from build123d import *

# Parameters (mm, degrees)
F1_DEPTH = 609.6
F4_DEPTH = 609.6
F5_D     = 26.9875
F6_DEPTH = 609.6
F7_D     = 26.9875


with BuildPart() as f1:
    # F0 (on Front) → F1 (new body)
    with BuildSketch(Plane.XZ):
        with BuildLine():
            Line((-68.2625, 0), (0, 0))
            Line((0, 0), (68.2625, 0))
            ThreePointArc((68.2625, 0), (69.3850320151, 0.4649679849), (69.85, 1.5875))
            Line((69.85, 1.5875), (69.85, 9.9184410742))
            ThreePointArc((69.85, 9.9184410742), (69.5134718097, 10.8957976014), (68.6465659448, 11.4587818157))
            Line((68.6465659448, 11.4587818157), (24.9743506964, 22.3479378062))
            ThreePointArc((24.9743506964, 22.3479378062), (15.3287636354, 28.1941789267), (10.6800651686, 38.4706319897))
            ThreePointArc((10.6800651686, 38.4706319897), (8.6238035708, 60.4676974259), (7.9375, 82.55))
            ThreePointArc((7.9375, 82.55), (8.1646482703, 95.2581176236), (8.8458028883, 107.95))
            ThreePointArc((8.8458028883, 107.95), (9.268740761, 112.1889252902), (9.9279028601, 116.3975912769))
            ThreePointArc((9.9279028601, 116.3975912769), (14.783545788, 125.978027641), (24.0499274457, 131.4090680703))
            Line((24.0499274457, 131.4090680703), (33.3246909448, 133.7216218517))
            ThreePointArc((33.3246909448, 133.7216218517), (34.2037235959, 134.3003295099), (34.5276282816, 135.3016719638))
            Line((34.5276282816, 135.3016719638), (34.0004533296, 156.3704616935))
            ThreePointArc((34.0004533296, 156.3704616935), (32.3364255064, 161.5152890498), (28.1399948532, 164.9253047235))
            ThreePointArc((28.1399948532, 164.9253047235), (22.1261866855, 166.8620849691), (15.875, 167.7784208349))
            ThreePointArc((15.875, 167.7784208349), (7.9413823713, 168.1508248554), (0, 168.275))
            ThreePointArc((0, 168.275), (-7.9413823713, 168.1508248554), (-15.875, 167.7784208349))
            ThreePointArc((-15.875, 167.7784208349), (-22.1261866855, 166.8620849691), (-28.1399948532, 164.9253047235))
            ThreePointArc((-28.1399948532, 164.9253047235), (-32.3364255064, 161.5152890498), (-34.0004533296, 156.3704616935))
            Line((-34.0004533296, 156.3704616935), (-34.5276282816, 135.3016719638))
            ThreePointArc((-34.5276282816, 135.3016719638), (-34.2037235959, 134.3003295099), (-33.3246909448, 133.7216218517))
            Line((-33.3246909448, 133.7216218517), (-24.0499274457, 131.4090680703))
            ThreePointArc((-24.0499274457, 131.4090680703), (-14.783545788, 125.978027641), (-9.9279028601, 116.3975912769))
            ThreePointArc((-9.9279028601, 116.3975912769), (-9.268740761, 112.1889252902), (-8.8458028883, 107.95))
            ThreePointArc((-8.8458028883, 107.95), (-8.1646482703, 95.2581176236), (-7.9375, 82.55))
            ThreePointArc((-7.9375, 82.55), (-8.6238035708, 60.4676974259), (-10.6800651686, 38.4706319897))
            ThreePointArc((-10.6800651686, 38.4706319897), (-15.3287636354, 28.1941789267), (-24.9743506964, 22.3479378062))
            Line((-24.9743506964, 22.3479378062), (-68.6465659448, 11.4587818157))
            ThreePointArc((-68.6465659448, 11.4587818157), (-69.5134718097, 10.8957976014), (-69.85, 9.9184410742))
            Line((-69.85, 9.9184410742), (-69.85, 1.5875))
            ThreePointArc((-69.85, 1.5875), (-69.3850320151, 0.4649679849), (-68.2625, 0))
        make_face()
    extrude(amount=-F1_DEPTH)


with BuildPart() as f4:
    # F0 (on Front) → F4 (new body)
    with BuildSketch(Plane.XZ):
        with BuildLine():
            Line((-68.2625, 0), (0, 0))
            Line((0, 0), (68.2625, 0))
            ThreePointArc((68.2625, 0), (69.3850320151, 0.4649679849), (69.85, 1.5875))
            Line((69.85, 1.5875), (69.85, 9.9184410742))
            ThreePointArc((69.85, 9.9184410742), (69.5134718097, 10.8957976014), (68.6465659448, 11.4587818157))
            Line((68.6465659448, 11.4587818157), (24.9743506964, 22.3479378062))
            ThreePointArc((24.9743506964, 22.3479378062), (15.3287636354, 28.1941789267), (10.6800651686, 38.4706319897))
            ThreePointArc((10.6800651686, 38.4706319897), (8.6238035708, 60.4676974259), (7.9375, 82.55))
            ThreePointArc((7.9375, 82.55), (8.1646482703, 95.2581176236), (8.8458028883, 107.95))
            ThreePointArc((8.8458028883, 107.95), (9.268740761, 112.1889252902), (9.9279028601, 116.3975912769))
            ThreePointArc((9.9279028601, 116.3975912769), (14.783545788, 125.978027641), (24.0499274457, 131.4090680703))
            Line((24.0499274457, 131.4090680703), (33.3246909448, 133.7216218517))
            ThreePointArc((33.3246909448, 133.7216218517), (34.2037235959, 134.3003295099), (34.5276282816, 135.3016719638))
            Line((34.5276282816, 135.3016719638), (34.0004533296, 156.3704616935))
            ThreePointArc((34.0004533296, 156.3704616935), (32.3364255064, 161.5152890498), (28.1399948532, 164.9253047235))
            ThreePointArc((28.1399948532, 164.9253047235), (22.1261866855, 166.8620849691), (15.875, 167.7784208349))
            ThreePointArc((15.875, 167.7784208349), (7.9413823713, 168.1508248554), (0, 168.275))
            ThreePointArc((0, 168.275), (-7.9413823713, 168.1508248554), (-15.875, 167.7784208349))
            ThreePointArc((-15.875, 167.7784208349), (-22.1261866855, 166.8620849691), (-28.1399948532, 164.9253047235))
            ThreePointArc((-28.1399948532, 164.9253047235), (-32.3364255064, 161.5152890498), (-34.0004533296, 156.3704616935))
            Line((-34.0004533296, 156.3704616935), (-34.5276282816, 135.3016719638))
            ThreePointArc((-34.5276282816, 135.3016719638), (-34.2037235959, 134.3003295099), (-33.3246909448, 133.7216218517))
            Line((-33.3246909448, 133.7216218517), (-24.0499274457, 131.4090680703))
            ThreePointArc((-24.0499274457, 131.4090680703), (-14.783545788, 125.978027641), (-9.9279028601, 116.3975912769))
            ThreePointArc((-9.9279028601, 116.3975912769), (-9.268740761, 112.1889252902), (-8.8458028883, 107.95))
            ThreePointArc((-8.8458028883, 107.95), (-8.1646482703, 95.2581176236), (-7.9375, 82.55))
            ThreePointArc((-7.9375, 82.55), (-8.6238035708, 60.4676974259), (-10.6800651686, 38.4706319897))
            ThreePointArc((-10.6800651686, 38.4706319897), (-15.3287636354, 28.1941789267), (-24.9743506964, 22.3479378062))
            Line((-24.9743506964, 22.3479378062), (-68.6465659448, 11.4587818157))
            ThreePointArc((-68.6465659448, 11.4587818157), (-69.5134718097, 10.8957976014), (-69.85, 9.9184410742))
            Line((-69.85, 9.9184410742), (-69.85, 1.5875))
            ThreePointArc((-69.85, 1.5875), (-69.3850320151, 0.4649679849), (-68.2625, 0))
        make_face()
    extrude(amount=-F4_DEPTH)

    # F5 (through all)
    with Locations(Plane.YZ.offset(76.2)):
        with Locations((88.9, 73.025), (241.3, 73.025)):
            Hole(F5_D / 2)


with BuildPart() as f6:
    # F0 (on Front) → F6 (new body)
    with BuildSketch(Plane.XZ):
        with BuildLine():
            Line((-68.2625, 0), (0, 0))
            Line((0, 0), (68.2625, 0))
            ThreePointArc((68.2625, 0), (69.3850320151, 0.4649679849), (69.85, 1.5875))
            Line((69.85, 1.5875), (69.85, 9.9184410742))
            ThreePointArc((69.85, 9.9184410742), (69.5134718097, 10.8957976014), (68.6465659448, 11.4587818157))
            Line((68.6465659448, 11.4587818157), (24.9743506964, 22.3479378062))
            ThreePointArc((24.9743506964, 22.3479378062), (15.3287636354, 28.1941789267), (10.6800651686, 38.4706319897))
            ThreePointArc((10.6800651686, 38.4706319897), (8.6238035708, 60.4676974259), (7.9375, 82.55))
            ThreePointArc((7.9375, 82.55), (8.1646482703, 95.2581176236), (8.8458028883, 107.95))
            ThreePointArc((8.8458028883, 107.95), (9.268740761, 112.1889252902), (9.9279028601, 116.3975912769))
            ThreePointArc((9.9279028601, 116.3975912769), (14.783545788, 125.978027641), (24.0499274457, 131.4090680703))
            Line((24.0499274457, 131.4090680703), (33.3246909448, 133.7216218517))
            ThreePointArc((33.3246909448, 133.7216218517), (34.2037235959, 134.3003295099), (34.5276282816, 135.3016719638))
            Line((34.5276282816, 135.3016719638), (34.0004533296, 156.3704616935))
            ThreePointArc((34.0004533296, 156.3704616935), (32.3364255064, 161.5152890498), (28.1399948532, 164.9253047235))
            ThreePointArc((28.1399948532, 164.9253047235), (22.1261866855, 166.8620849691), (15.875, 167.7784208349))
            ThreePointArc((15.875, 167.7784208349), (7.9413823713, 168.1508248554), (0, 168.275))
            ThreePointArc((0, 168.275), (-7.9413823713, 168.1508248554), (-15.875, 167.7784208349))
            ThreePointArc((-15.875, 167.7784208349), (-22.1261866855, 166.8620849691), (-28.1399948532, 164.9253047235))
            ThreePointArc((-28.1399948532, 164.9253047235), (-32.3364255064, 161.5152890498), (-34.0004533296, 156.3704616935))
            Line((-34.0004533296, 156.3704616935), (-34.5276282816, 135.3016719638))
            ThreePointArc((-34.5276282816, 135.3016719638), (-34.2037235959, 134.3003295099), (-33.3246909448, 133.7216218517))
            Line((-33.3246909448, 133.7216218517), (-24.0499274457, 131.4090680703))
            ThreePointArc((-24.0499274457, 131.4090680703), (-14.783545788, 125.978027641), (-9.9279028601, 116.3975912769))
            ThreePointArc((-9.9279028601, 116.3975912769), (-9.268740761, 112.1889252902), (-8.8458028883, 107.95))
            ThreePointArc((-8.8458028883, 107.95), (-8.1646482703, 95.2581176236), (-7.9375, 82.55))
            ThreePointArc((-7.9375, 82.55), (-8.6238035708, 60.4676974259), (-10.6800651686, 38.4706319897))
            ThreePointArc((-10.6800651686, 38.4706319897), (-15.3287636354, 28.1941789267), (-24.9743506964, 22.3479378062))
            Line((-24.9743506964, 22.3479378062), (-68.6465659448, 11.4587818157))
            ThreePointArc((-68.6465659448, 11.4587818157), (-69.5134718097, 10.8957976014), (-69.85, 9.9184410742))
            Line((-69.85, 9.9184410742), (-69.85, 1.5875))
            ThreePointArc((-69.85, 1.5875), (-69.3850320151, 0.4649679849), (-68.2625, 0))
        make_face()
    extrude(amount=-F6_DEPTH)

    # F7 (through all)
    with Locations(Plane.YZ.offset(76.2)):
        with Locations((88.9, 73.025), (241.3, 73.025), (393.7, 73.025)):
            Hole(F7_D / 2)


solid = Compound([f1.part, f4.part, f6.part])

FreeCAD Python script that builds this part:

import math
import FreeCAD as App
import Part
import Sketcher
Q = App.Units.Quantity

doc = App.newDocument("Part")
body = doc.addObject("PartDesign::Body", "Body")

# Sketch on XZ plane
sketch1 = body.newObject("Sketcher::SketchObject", "Sketch")
sketch1.AttachmentSupport = (doc.getObject("XZ_Plane"), [""])
sketch1.MapMode = "FlatFace"
sketch1.addGeometry([
    Part.LineSegment(App.Vector(-68.3, 0, 0), App.Vector(68.3, 0, 0)),  # 0
    Part.ArcOfCircle(Part.Circle(App.Vector(68.3, 1.6, 0), App.Vector(0, 0, 1), 1.6), math.radians(-90), math.radians(0)),  # 1
    Part.LineSegment(App.Vector(69.8, 1.6, 0), App.Vector(69.8, 9.9, 0)),  # 2
    Part.ArcOfCircle(Part.Circle(App.Vector(68.3, 9.9, 0), App.Vector(0, 0, 1), 1.6), math.radians(0), math.radians(76)),  # 3
    Part.LineSegment(App.Vector(68.6, 11.5, 0), App.Vector(25, 22.3, 0)),  # 4
    Part.ArcOfCircle(Part.Circle(App.Vector(29.6, 40.8, 0), App.Vector(0, 0, 1), 19.1), math.radians(-173), math.radians(-104)),  # 5
    Part.ArcOfCircle(Part.Circle(App.Vector(363.5, 82.5, 0), App.Vector(0, 0, 1), 355.6), math.radians(180), math.radians(187.12)),  # 6
    Part.ArcOfCircle(Part.Circle(App.Vector(363.5, 82.6, 0), App.Vector(0, 0, 1), 355.6), math.radians(175.9), math.radians(180)),  # 7
    Part.ArcOfCircle(Part.Circle(App.Vector(84.9, 102.5, 0), App.Vector(0, 0, 1), 76.2), math.radians(169.5), math.radians(175.9)),  # 8
    Part.ArcOfCircle(Part.Circle(App.Vector(28.7, 112.9, 0), App.Vector(0, 0, 1), 19.1), math.radians(104), math.radians(169)),  # 9
    Part.LineSegment(App.Vector(24, 131.4, 0), App.Vector(33.3, 133.7, 0)),  # 10
    Part.ArcOfCircle(Part.Circle(App.Vector(32.9, 135.3, 0), App.Vector(0, 0, 1), 1.6), math.radians(-76), math.radians(1)),  # 11
    Part.LineSegment(App.Vector(34.5, 135.3, 0), App.Vector(34, 156.4, 0)),  # 12
    Part.ArcOfCircle(Part.Circle(App.Vector(24.5, 156.1, 0), App.Vector(0, 0, 1), 9.5), math.radians(1), math.radians(67)),  # 13
    Part.ArcOfCircle(Part.Circle(App.Vector(13.5, 129.8, 0), App.Vector(0, 0, 1), 38.1), math.radians(67.39), math.radians(86.42)),  # 14
    Part.ArcOfCircle(Part.Circle(App.Vector(0, -85.7, 0), App.Vector(0, 0, 1), 254), math.radians(86.42), math.radians(90)),  # 15
    Part.ArcOfCircle(Part.Circle(App.Vector(0, -85.7, 0), App.Vector(0, 0, 1), 254), math.radians(90), math.radians(93.58)),  # 16
    Part.ArcOfCircle(Part.Circle(App.Vector(-13.5, 129.8, 0), App.Vector(0, 0, 1), 38.1), math.radians(93.58), math.radians(112.61)),  # 17
    Part.ArcOfCircle(Part.Circle(App.Vector(-24.5, 156.1, 0), App.Vector(0, 0, 1), 9.5), math.radians(113), math.radians(179)),  # 18
    Part.LineSegment(App.Vector(-34, 156.4, 0), App.Vector(-34.5, 135.3, 0)),  # 19
    Part.ArcOfCircle(Part.Circle(App.Vector(-32.9, 135.3, 0), App.Vector(0, 0, 1), 1.6), math.radians(179), math.radians(256)),  # 20
    Part.LineSegment(App.Vector(-33.3, 133.7, 0), App.Vector(-24, 131.4, 0)),  # 21
    Part.ArcOfCircle(Part.Circle(App.Vector(-28.7, 112.9, 0), App.Vector(0, 0, 1), 19.1), math.radians(11), math.radians(76)),  # 22
    Part.ArcOfCircle(Part.Circle(App.Vector(-84.9, 102.5, 0), App.Vector(0, 0, 1), 76.2), math.radians(4.1), math.radians(10.5)),  # 23
    Part.ArcOfCircle(Part.Circle(App.Vector(-363.5, 82.6, 0), App.Vector(0, 0, 1), 355.6), math.radians(0), math.radians(4.1)),  # 24
    Part.ArcOfCircle(Part.Circle(App.Vector(-363.5, 82.5, 0), App.Vector(0, 0, 1), 355.6), math.radians(-7.12), math.radians(0)),  # 25
    Part.ArcOfCircle(Part.Circle(App.Vector(-29.6, 40.8, 0), App.Vector(0, 0, 1), 19.1), math.radians(-76), math.radians(-7)),  # 26
    Part.LineSegment(App.Vector(-25, 22.3, 0), App.Vector(-68.6, 11.5, 0)),  # 27
    Part.ArcOfCircle(Part.Circle(App.Vector(-68.3, 9.9, 0), App.Vector(0, 0, 1), 1.6), math.radians(104), math.radians(180)),  # 28
    Part.LineSegment(App.Vector(-69.8, 9.9, 0), App.Vector(-69.8, 1.6, 0)),  # 29
    Part.ArcOfCircle(Part.Circle(App.Vector(-68.3, 1.6, 0), App.Vector(0, 0, 1), 1.6), math.radians(180), math.radians(270)),  # 30
], False)
sketch1.addConstraint([
    Sketcher.Constraint("Tangent", 0, 2, 1, 1),
    Sketcher.Constraint("Tangent", 1, 2, 2, 1),
    Sketcher.Constraint("Tangent", 2, 2, 3, 1),
    Sketcher.Constraint("Tangent", 3, 2, 4, 1),
    Sketcher.Constraint("Tangent", 4, 2, 5, 2),
    Sketcher.Constraint("Tangent", 5, 1, 6, 2),
    Sketcher.Constraint("Tangent", 6, 1, 7, 2),
    Sketcher.Constraint("Tangent", 7, 1, 8, 2),
    Sketcher.Constraint("Tangent", 8, 1, 9, 2),
    Sketcher.Constraint("Tangent", 9, 1, 10, 1),
    Sketcher.Constraint("Tangent", 10, 2, 11, 1),
    Sketcher.Constraint("Tangent", 11, 2, 12, 1),
    Sketcher.Constraint("Tangent", 12, 2, 13, 1),
    Sketcher.Constraint("Tangent", 13, 2, 14, 1),
    Sketcher.Constraint("Tangent", 14, 2, 15, 1),
    Sketcher.Constraint("Tangent", 15, 2, 16, 1),
    Sketcher.Constraint("Tangent", 16, 2, 17, 1),
    Sketcher.Constraint("Tangent", 17, 2, 18, 1),
    Sketcher.Constraint("Tangent", 18, 2, 19, 1),
    Sketcher.Constraint("Tangent", 19, 2, 20, 1),
    Sketcher.Constraint("Tangent", 20, 2, 21, 1),
    Sketcher.Constraint("Tangent", 21, 2, 22, 2),
    Sketcher.Constraint("Tangent", 22, 1, 23, 2),
    Sketcher.Constraint("Tangent", 23, 1, 24, 2),
    Sketcher.Constraint("Tangent", 24, 1, 25, 2),
    Sketcher.Constraint("Tangent", 25, 1, 26, 2),
    Sketcher.Constraint("Tangent", 26, 1, 27, 1),
    Sketcher.Constraint("Tangent", 27, 2, 28, 1),
    Sketcher.Constraint("Tangent", 28, 2, 29, 1),
    Sketcher.Constraint("Tangent", 29, 2, 30, 1),
    Sketcher.Constraint("Tangent", 30, 2, 0, 1),
    Sketcher.Constraint("Horizontal", 0),
    Sketcher.Constraint("Vertical", 2),
    Sketcher.Constraint("Vertical", 29),
    Sketcher.Constraint("Equal", 1, 3),
    Sketcher.Constraint("Equal", 6, 7),
    Sketcher.Constraint("Equal", 5, 9),
    Sketcher.Constraint("Equal", 3, 11),
    Sketcher.Constraint("Equal", 15, 16),
    Sketcher.Constraint("Equal", 14, 17),
    Sketcher.Constraint("Equal", 13, 18),
    Sketcher.Constraint("Equal", 11, 20),
    Sketcher.Constraint("Equal", 9, 22),
    Sketcher.Constraint("Equal", 8, 23),
    Sketcher.Constraint("Equal", 7, 24),
    Sketcher.Constraint("Equal", 24, 25),
    Sketcher.Constraint("Equal", 22, 26),
    Sketcher.Constraint("Equal", 20, 28),
    Sketcher.Constraint("Equal", 28, 30),
    Sketcher.Constraint("Symmetric", 0, 2, 30, 2, -1, 1),
    Sketcher.Constraint("Symmetric", 14, 3, 17, 3, -2),
    Sketcher.Constraint("Symmetric", 11, 3, 20, 3, -2),
    Sketcher.Constraint("Symmetric", 9, 3, 22, 3, -2),
    Sketcher.Constraint("Symmetric", 6, 3, 24, 3, -2),
    Sketcher.Constraint("Symmetric", 4, 2, 26, 1, -2),
    Sketcher.Constraint("PointOnObject", 15, 2, -2),
    Sketcher.Constraint("Parallel", 4, 21),
    Sketcher.Constraint("Horizontal", 13, 3, 18, 3),
    Sketcher.Constraint("Horizontal", 25, 3, 6, 1),
    Sketcher.Constraint("Horizontal", 6, 1, 24, 1),
    Sketcher.Constraint("Radius", 6, Q("14 in")),
    Sketcher.Constraint("Radius", 8, Q("3 in")),
    Sketcher.Constraint("Radius", 15, Q("10 in")),
    Sketcher.Constraint("Radius", 14, Q("1.5 in")),
    Sketcher.Constraint("Radius", 5, Q("0.75 in")),
    Sketcher.Constraint("Radius", 1, Q("0.0625 in")),
    Sketcher.Constraint("Radius", 13, Q("0.375 in")),
    Sketcher.Constraint("DistanceY", 6, 1, 7, 1, Q("1 in")),
    Sketcher.Constraint("DistanceX", 0, 1, 0, 2, Q("5.375 in")),
    Sketcher.Constraint("DistanceY", -1, 1, 6, 3, Q("3.25 in")),
    Sketcher.Constraint("DistanceX", 16, 2, 14, 2, Q("1.25 in")),
    Sketcher.Constraint("DistanceX", -1, 1, 6, 3, Q("14.3125 in")),
    Sketcher.Constraint("DistanceX", -1, 1, 11, 3, Q("1.296875 in")),
    Sketcher.Constraint("DistanceY", 15, 3, -1, 1, Q("3.375 in")),
    Sketcher.Constraint("DistanceY", 8, 1, 14, 3, Q("0.5257999 in")),
    Sketcher.Constraint("DistanceY", 2, 1, 2, 2, 8.330941),
    Sketcher.Constraint("DistanceX", 5, 1, 3, 2, 57.966501),
    Sketcher.Constraint("DistanceY", 11, 3, 12, 2, 21.108499),
])
pad1 = body.newObject("PartDesign::Pad", "Pad")
pad1.Profile = sketch1
pad1.Length = Q("24 in")
pad1.Reversed = True
body2 = doc.addObject("PartDesign::Body", "Body001")

# Sketch on XZ plane
sketch2 = body2.newObject("Sketcher::SketchObject", "Sketch001")
sketch2.AttachmentSupport = (doc.getObject("XZ_Plane001"), [""])
sketch2.MapMode = "FlatFace"
sketch2.addGeometry([
    Part.LineSegment(App.Vector(-68.3, 0, 0), App.Vector(68.3, 0, 0)),  # 0
    Part.ArcOfCircle(Part.Circle(App.Vector(68.3, 1.6, 0), App.Vector(0, 0, 1), 1.6), math.radians(-90), math.radians(0)),  # 1
    Part.LineSegment(App.Vector(69.8, 1.6, 0), App.Vector(69.8, 9.9, 0)),  # 2
    Part.ArcOfCircle(Part.Circle(App.Vector(68.3, 9.9, 0), App.Vector(0, 0, 1), 1.6), math.radians(0), math.radians(76)),  # 3
    Part.LineSegment(App.Vector(68.6, 11.5, 0), App.Vector(25, 22.3, 0)),  # 4
    Part.ArcOfCircle(Part.Circle(App.Vector(29.6, 40.8, 0), App.Vector(0, 0, 1), 19.1), math.radians(-173), math.radians(-104)),  # 5
    Part.ArcOfCircle(Part.Circle(App.Vector(363.5, 82.5, 0), App.Vector(0, 0, 1), 355.6), math.radians(180), math.radians(187.12)),  # 6
    Part.ArcOfCircle(Part.Circle(App.Vector(363.5, 82.6, 0), App.Vector(0, 0, 1), 355.6), math.radians(175.9), math.radians(180)),  # 7
    Part.ArcOfCircle(Part.Circle(App.Vector(84.9, 102.5, 0), App.Vector(0, 0, 1), 76.2), math.radians(169.5), math.radians(175.9)),  # 8
    Part.ArcOfCircle(Part.Circle(App.Vector(28.7, 112.9, 0), App.Vector(0, 0, 1), 19.1), math.radians(104), math.radians(169)),  # 9
    Part.LineSegment(App.Vector(24, 131.4, 0), App.Vector(33.3, 133.7, 0)),  # 10
    Part.ArcOfCircle(Part.Circle(App.Vector(32.9, 135.3, 0), App.Vector(0, 0, 1), 1.6), math.radians(-76), math.radians(1)),  # 11
    Part.LineSegment(App.Vector(34.5, 135.3, 0), App.Vector(34, 156.4, 0)),  # 12
    Part.ArcOfCircle(Part.Circle(App.Vector(24.5, 156.1, 0), App.Vector(0, 0, 1), 9.5), math.radians(1), math.radians(67)),  # 13
    Part.ArcOfCircle(Part.Circle(App.Vector(13.5, 129.8, 0), App.Vector(0, 0, 1), 38.1), math.radians(67.39), math.radians(86.42)),  # 14
    Part.ArcOfCircle(Part.Circle(App.Vector(0, -85.7, 0), App.Vector(0, 0, 1), 254), math.radians(86.42), math.radians(90)),  # 15
    Part.ArcOfCircle(Part.Circle(App.Vector(0, -85.7, 0), App.Vector(0, 0, 1), 254), math.radians(90), math.radians(93.58)),  # 16
    Part.ArcOfCircle(Part.Circle(App.Vector(-13.5, 129.8, 0), App.Vector(0, 0, 1), 38.1), math.radians(93.58), math.radians(112.61)),  # 17
    Part.ArcOfCircle(Part.Circle(App.Vector(-24.5, 156.1, 0), App.Vector(0, 0, 1), 9.5), math.radians(113), math.radians(179)),  # 18
    Part.LineSegment(App.Vector(-34, 156.4, 0), App.Vector(-34.5, 135.3, 0)),  # 19
    Part.ArcOfCircle(Part.Circle(App.Vector(-32.9, 135.3, 0), App.Vector(0, 0, 1), 1.6), math.radians(179), math.radians(256)),  # 20
    Part.LineSegment(App.Vector(-33.3, 133.7, 0), App.Vector(-24, 131.4, 0)),  # 21
    Part.ArcOfCircle(Part.Circle(App.Vector(-28.7, 112.9, 0), App.Vector(0, 0, 1), 19.1), math.radians(11), math.radians(76)),  # 22
    Part.ArcOfCircle(Part.Circle(App.Vector(-84.9, 102.5, 0), App.Vector(0, 0, 1), 76.2), math.radians(4.1), math.radians(10.5)),  # 23
    Part.ArcOfCircle(Part.Circle(App.Vector(-363.5, 82.6, 0), App.Vector(0, 0, 1), 355.6), math.radians(0), math.radians(4.1)),  # 24
    Part.ArcOfCircle(Part.Circle(App.Vector(-363.5, 82.5, 0), App.Vector(0, 0, 1), 355.6), math.radians(-7.12), math.radians(0)),  # 25
    Part.ArcOfCircle(Part.Circle(App.Vector(-29.6, 40.8, 0), App.Vector(0, 0, 1), 19.1), math.radians(-76), math.radians(-7)),  # 26
    Part.LineSegment(App.Vector(-25, 22.3, 0), App.Vector(-68.6, 11.5, 0)),  # 27
    Part.ArcOfCircle(Part.Circle(App.Vector(-68.3, 9.9, 0), App.Vector(0, 0, 1), 1.6), math.radians(104), math.radians(180)),  # 28
    Part.LineSegment(App.Vector(-69.8, 9.9, 0), App.Vector(-69.8, 1.6, 0)),  # 29
    Part.ArcOfCircle(Part.Circle(App.Vector(-68.3, 1.6, 0), App.Vector(0, 0, 1), 1.6), math.radians(180), math.radians(270)),  # 30
], False)
sketch2.addConstraint([
    Sketcher.Constraint("Tangent", 0, 2, 1, 1),
    Sketcher.Constraint("Tangent", 1, 2, 2, 1),
    Sketcher.Constraint("Tangent", 2, 2, 3, 1),
    Sketcher.Constraint("Tangent", 3, 2, 4, 1),
    Sketcher.Constraint("Tangent", 4, 2, 5, 2),
    Sketcher.Constraint("Tangent", 5, 1, 6, 2),
    Sketcher.Constraint("Tangent", 6, 1, 7, 2),
    Sketcher.Constraint("Tangent", 7, 1, 8, 2),
    Sketcher.Constraint("Tangent", 8, 1, 9, 2),
    Sketcher.Constraint("Tangent", 9, 1, 10, 1),
    Sketcher.Constraint("Tangent", 10, 2, 11, 1),
    Sketcher.Constraint("Tangent", 11, 2, 12, 1),
    Sketcher.Constraint("Tangent", 12, 2, 13, 1),
    Sketcher.Constraint("Tangent", 13, 2, 14, 1),
    Sketcher.Constraint("Tangent", 14, 2, 15, 1),
    Sketcher.Constraint("Tangent", 15, 2, 16, 1),
    Sketcher.Constraint("Tangent", 16, 2, 17, 1),
    Sketcher.Constraint("Tangent", 17, 2, 18, 1),
    Sketcher.Constraint("Tangent", 18, 2, 19, 1),
    Sketcher.Constraint("Tangent", 19, 2, 20, 1),
    Sketcher.Constraint("Tangent", 20, 2, 21, 1),
    Sketcher.Constraint("Tangent", 21, 2, 22, 2),
    Sketcher.Constraint("Tangent", 22, 1, 23, 2),
    Sketcher.Constraint("Tangent", 23, 1, 24, 2),
    Sketcher.Constraint("Tangent", 24, 1, 25, 2),
    Sketcher.Constraint("Tangent", 25, 1, 26, 2),
    Sketcher.Constraint("Tangent", 26, 1, 27, 1),
    Sketcher.Constraint("Tangent", 27, 2, 28, 1),
    Sketcher.Constraint("Tangent", 28, 2, 29, 1),
    Sketcher.Constraint("Tangent", 29, 2, 30, 1),
    Sketcher.Constraint("Tangent", 30, 2, 0, 1),
    Sketcher.Constraint("Horizontal", 0),
    Sketcher.Constraint("Vertical", 2),
    Sketcher.Constraint("Vertical", 29),
    Sketcher.Constraint("Equal", 1, 3),
    Sketcher.Constraint("Equal", 6, 7),
    Sketcher.Constraint("Equal", 5, 9),
    Sketcher.Constraint("Equal", 3, 11),
    Sketcher.Constraint("Equal", 15, 16),
    Sketcher.Constraint("Equal", 14, 17),
    Sketcher.Constraint("Equal", 13, 18),
    Sketcher.Constraint("Equal", 11, 20),
    Sketcher.Constraint("Equal", 9, 22),
    Sketcher.Constraint("Equal", 8, 23),
    Sketcher.Constraint("Equal", 7, 24),
    Sketcher.Constraint("Equal", 24, 25),
    Sketcher.Constraint("Equal", 22, 26),
    Sketcher.Constraint("Equal", 20, 28),
    Sketcher.Constraint("Equal", 28, 30),
    Sketcher.Constraint("Symmetric", 0, 2, 30, 2, -1, 1),
    Sketcher.Constraint("Symmetric", 14, 3, 17, 3, -2),
    Sketcher.Constraint("Symmetric", 11, 3, 20, 3, -2),
    Sketcher.Constraint("Symmetric", 9, 3, 22, 3, -2),
    Sketcher.Constraint("Symmetric", 6, 3, 24, 3, -2),
    Sketcher.Constraint("Symmetric", 4, 2, 26, 1, -2),
    Sketcher.Constraint("PointOnObject", 15, 2, -2),
    Sketcher.Constraint("Parallel", 4, 21),
    Sketcher.Constraint("Horizontal", 13, 3, 18, 3),
    Sketcher.Constraint("Horizontal", 25, 3, 6, 1),
    Sketcher.Constraint("Horizontal", 6, 1, 24, 1),
    Sketcher.Constraint("Radius", 6, Q("14 in")),
    Sketcher.Constraint("Radius", 8, Q("3 in")),
    Sketcher.Constraint("Radius", 15, Q("10 in")),
    Sketcher.Constraint("Radius", 14, Q("1.5 in")),
    Sketcher.Constraint("Radius", 5, Q("0.75 in")),
    Sketcher.Constraint("Radius", 1, Q("0.0625 in")),
    Sketcher.Constraint("Radius", 13, Q("0.375 in")),
    Sketcher.Constraint("DistanceY", 6, 1, 7, 1, Q("1 in")),
    Sketcher.Constraint("DistanceX", 0, 1, 0, 2, Q("5.375 in")),
    Sketcher.Constraint("DistanceY", -1, 1, 6, 3, Q("3.25 in")),
    Sketcher.Constraint("DistanceX", 16, 2, 14, 2, Q("1.25 in")),
    Sketcher.Constraint("DistanceX", -1, 1, 6, 3, Q("14.3125 in")),
    Sketcher.Constraint("DistanceX", -1, 1, 11, 3, Q("1.296875 in")),
    Sketcher.Constraint("DistanceY", 15, 3, -1, 1, Q("3.375 in")),
    Sketcher.Constraint("DistanceY", 8, 1, 14, 3, Q("0.5257999 in")),
    Sketcher.Constraint("DistanceY", 2, 1, 2, 2, 8.330941),
    Sketcher.Constraint("DistanceX", 5, 1, 3, 2, 57.966501),
    Sketcher.Constraint("DistanceY", 11, 3, 12, 2, 21.108499),
])
pad2 = body2.newObject("PartDesign::Pad", "Pad001")
pad2.Profile = sketch2
pad2.Length = Q("24 in")
pad2.Reversed = True

# Sketch on YZ plane
sketch3 = body2.newObject("Sketcher::SketchObject", "Sketch002")
sketch3.AttachmentSupport = (doc.getObject("YZ_Plane001"), [""])
sketch3.MapMode = "FlatFace"
sketch3.AttachmentOffset = App.Placement(App.Vector(0, 0, 3 * 25.4), App.Rotation())
sketch3.addGeometry([
    Part.Circle(App.Vector(89, 73, 0), App.Vector(0, 0, 1), 13),
    Part.Circle(App.Vector(241, 73, 0), App.Vector(0, 0, 1), 13),
], False)
sketch3.addConstraint([
    Sketcher.Constraint("Equal", 0, 1),
    Sketcher.Constraint("Horizontal", 0, 3, 1, 3),
    Sketcher.Constraint("Diameter", 0, Q("1.0625 in")),
    Sketcher.Constraint("DistanceX", 0, 3, 1, 3, Q("6 in")),
    Sketcher.Constraint("DistanceX", -1, 1, 0, 3, Q("3.5 in")),
    Sketcher.Constraint("DistanceY", -1, 1, 0, 3, Q("2.875 in")),
])
doc.recompute()
hole = body2.newObject("PartDesign::Hole", "Hole")
hole.Profile = sketch3
hole.ThreadType = "None"
hole.Diameter = Q("1.0625 in")
hole.DepthType = "ThroughAll"
body3 = doc.addObject("PartDesign::Body", "Body002")

# Sketch on XZ plane
sketch4 = body3.newObject("Sketcher::SketchObject", "Sketch003")
sketch4.AttachmentSupport = (doc.getObject("XZ_Plane002"), [""])
sketch4.MapMode = "FlatFace"
sketch4.addGeometry([
    Part.LineSegment(App.Vector(-68.3, 0, 0), App.Vector(68.3, 0, 0)),  # 0
    Part.ArcOfCircle(Part.Circle(App.Vector(68.3, 1.6, 0), App.Vector(0, 0, 1), 1.6), math.radians(-90), math.radians(0)),  # 1
    Part.LineSegment(App.Vector(69.8, 1.6, 0), App.Vector(69.8, 9.9, 0)),  # 2
    Part.ArcOfCircle(Part.Circle(App.Vector(68.3, 9.9, 0), App.Vector(0, 0, 1), 1.6), math.radians(0), math.radians(76)),  # 3
    Part.LineSegment(App.Vector(68.6, 11.5, 0), App.Vector(25, 22.3, 0)),  # 4
    Part.ArcOfCircle(Part.Circle(App.Vector(29.6, 40.8, 0), App.Vector(0, 0, 1), 19.1), math.radians(-173), math.radians(-104)),  # 5
    Part.ArcOfCircle(Part.Circle(App.Vector(363.5, 82.5, 0), App.Vector(0, 0, 1), 355.6), math.radians(180), math.radians(187.12)),  # 6
    Part.ArcOfCircle(Part.Circle(App.Vector(363.5, 82.6, 0), App.Vector(0, 0, 1), 355.6), math.radians(175.9), math.radians(180)),  # 7
    Part.ArcOfCircle(Part.Circle(App.Vector(84.9, 102.5, 0), App.Vector(0, 0, 1), 76.2), math.radians(169.5), math.radians(175.9)),  # 8
    Part.ArcOfCircle(Part.Circle(App.Vector(28.7, 112.9, 0), App.Vector(0, 0, 1), 19.1), math.radians(104), math.radians(169)),  # 9
    Part.LineSegment(App.Vector(24, 131.4, 0), App.Vector(33.3, 133.7, 0)),  # 10
    Part.ArcOfCircle(Part.Circle(App.Vector(32.9, 135.3, 0), App.Vector(0, 0, 1), 1.6), math.radians(-76), math.radians(1)),  # 11
    Part.LineSegment(App.Vector(34.5, 135.3, 0), App.Vector(34, 156.4, 0)),  # 12
    Part.ArcOfCircle(Part.Circle(App.Vector(24.5, 156.1, 0), App.Vector(0, 0, 1), 9.5), math.radians(1), math.radians(67)),  # 13
    Part.ArcOfCircle(Part.Circle(App.Vector(13.5, 129.8, 0), App.Vector(0, 0, 1), 38.1), math.radians(67.39), math.radians(86.42)),  # 14
    Part.ArcOfCircle(Part.Circle(App.Vector(0, -85.7, 0), App.Vector(0, 0, 1), 254), math.radians(86.42), math.radians(90)),  # 15
    Part.ArcOfCircle(Part.Circle(App.Vector(0, -85.7, 0), App.Vector(0, 0, 1), 254), math.radians(90), math.radians(93.58)),  # 16
    Part.ArcOfCircle(Part.Circle(App.Vector(-13.5, 129.8, 0), App.Vector(0, 0, 1), 38.1), math.radians(93.58), math.radians(112.61)),  # 17
    Part.ArcOfCircle(Part.Circle(App.Vector(-24.5, 156.1, 0), App.Vector(0, 0, 1), 9.5), math.radians(113), math.radians(179)),  # 18
    Part.LineSegment(App.Vector(-34, 156.4, 0), App.Vector(-34.5, 135.3, 0)),  # 19
    Part.ArcOfCircle(Part.Circle(App.Vector(-32.9, 135.3, 0), App.Vector(0, 0, 1), 1.6), math.radians(179), math.radians(256)),  # 20
    Part.LineSegment(App.Vector(-33.3, 133.7, 0), App.Vector(-24, 131.4, 0)),  # 21
    Part.ArcOfCircle(Part.Circle(App.Vector(-28.7, 112.9, 0), App.Vector(0, 0, 1), 19.1), math.radians(11), math.radians(76)),  # 22
    Part.ArcOfCircle(Part.Circle(App.Vector(-84.9, 102.5, 0), App.Vector(0, 0, 1), 76.2), math.radians(4.1), math.radians(10.5)),  # 23
    Part.ArcOfCircle(Part.Circle(App.Vector(-363.5, 82.6, 0), App.Vector(0, 0, 1), 355.6), math.radians(0), math.radians(4.1)),  # 24
    Part.ArcOfCircle(Part.Circle(App.Vector(-363.5, 82.5, 0), App.Vector(0, 0, 1), 355.6), math.radians(-7.12), math.radians(0)),  # 25
    Part.ArcOfCircle(Part.Circle(App.Vector(-29.6, 40.8, 0), App.Vector(0, 0, 1), 19.1), math.radians(-76), math.radians(-7)),  # 26
    Part.LineSegment(App.Vector(-25, 22.3, 0), App.Vector(-68.6, 11.5, 0)),  # 27
    Part.ArcOfCircle(Part.Circle(App.Vector(-68.3, 9.9, 0), App.Vector(0, 0, 1), 1.6), math.radians(104), math.radians(180)),  # 28
    Part.LineSegment(App.Vector(-69.8, 9.9, 0), App.Vector(-69.8, 1.6, 0)),  # 29
    Part.ArcOfCircle(Part.Circle(App.Vector(-68.3, 1.6, 0), App.Vector(0, 0, 1), 1.6), math.radians(180), math.radians(270)),  # 30
], False)
sketch4.addConstraint([
    Sketcher.Constraint("Tangent", 0, 2, 1, 1),
    Sketcher.Constraint("Tangent", 1, 2, 2, 1),
    Sketcher.Constraint("Tangent", 2, 2, 3, 1),
    Sketcher.Constraint("Tangent", 3, 2, 4, 1),
    Sketcher.Constraint("Tangent", 4, 2, 5, 2),
    Sketcher.Constraint("Tangent", 5, 1, 6, 2),
    Sketcher.Constraint("Tangent", 6, 1, 7, 2),
    Sketcher.Constraint("Tangent", 7, 1, 8, 2),
    Sketcher.Constraint("Tangent", 8, 1, 9, 2),
    Sketcher.Constraint("Tangent", 9, 1, 10, 1),
    Sketcher.Constraint("Tangent", 10, 2, 11, 1),
    Sketcher.Constraint("Tangent", 11, 2, 12, 1),
    Sketcher.Constraint("Tangent", 12, 2, 13, 1),
    Sketcher.Constraint("Tangent", 13, 2, 14, 1),
    Sketcher.Constraint("Tangent", 14, 2, 15, 1),
    Sketcher.Constraint("Tangent", 15, 2, 16, 1),
    Sketcher.Constraint("Tangent", 16, 2, 17, 1),
    Sketcher.Constraint("Tangent", 17, 2, 18, 1),
    Sketcher.Constraint("Tangent", 18, 2, 19, 1),
    Sketcher.Constraint("Tangent", 19, 2, 20, 1),
    Sketcher.Constraint("Tangent", 20, 2, 21, 1),
    Sketcher.Constraint("Tangent", 21, 2, 22, 2),
    Sketcher.Constraint("Tangent", 22, 1, 23, 2),
    Sketcher.Constraint("Tangent", 23, 1, 24, 2),
    Sketcher.Constraint("Tangent", 24, 1, 25, 2),
    Sketcher.Constraint("Tangent", 25, 1, 26, 2),
    Sketcher.Constraint("Tangent", 26, 1, 27, 1),
    Sketcher.Constraint("Tangent", 27, 2, 28, 1),
    Sketcher.Constraint("Tangent", 28, 2, 29, 1),
    Sketcher.Constraint("Tangent", 29, 2, 30, 1),
    Sketcher.Constraint("Tangent", 30, 2, 0, 1),
    Sketcher.Constraint("Horizontal", 0),
    Sketcher.Constraint("Vertical", 2),
    Sketcher.Constraint("Vertical", 29),
    Sketcher.Constraint("Equal", 1, 3),
    Sketcher.Constraint("Equal", 6, 7),
    Sketcher.Constraint("Equal", 5, 9),
    Sketcher.Constraint("Equal", 3, 11),
    Sketcher.Constraint("Equal", 15, 16),
    Sketcher.Constraint("Equal", 14, 17),
    Sketcher.Constraint("Equal", 13, 18),
    Sketcher.Constraint("Equal", 11, 20),
    Sketcher.Constraint("Equal", 9, 22),
    Sketcher.Constraint("Equal", 8, 23),
    Sketcher.Constraint("Equal", 7, 24),
    Sketcher.Constraint("Equal", 24, 25),
    Sketcher.Constraint("Equal", 22, 26),
    Sketcher.Constraint("Equal", 20, 28),
    Sketcher.Constraint("Equal", 28, 30),
    Sketcher.Constraint("Symmetric", 0, 2, 30, 2, -1, 1),
    Sketcher.Constraint("Symmetric", 14, 3, 17, 3, -2),
    Sketcher.Constraint("Symmetric", 11, 3, 20, 3, -2),
    Sketcher.Constraint("Symmetric", 9, 3, 22, 3, -2),
    Sketcher.Constraint("Symmetric", 6, 3, 24, 3, -2),
    Sketcher.Constraint("Symmetric", 4, 2, 26, 1, -2),
    Sketcher.Constraint("PointOnObject", 15, 2, -2),
    Sketcher.Constraint("Parallel", 4, 21),
    Sketcher.Constraint("Horizontal", 13, 3, 18, 3),
    Sketcher.Constraint("Horizontal", 25, 3, 6, 1),
    Sketcher.Constraint("Horizontal", 6, 1, 24, 1),
    Sketcher.Constraint("Radius", 6, Q("14 in")),
    Sketcher.Constraint("Radius", 8, Q("3 in")),
    Sketcher.Constraint("Radius", 15, Q("10 in")),
    Sketcher.Constraint("Radius", 14, Q("1.5 in")),
    Sketcher.Constraint("Radius", 5, Q("0.75 in")),
    Sketcher.Constraint("Radius", 1, Q("0.0625 in")),
    Sketcher.Constraint("Radius", 13, Q("0.375 in")),
    Sketcher.Constraint("DistanceY", 6, 1, 7, 1, Q("1 in")),
    Sketcher.Constraint("DistanceX", 0, 1, 0, 2, Q("5.375 in")),
    Sketcher.Constraint("DistanceY", -1, 1, 6, 3, Q("3.25 in")),
    Sketcher.Constraint("DistanceX", 16, 2, 14, 2, Q("1.25 in")),
    Sketcher.Constraint("DistanceX", -1, 1, 6, 3, Q("14.3125 in")),
    Sketcher.Constraint("DistanceX", -1, 1, 11, 3, Q("1.296875 in")),
    Sketcher.Constraint("DistanceY", 15, 3, -1, 1, Q("3.375 in")),
    Sketcher.Constraint("DistanceY", 8, 1, 14, 3, Q("0.5257999 in")),
    Sketcher.Constraint("DistanceY", 2, 1, 2, 2, 8.330941),
    Sketcher.Constraint("DistanceX", 5, 1, 3, 2, 57.966501),
    Sketcher.Constraint("DistanceY", 11, 3, 12, 2, 21.108499),
])
pad3 = body3.newObject("PartDesign::Pad", "Pad002")
pad3.Profile = sketch4
pad3.Length = Q("24 in")
pad3.Reversed = True

# Sketch on YZ plane
sketch5 = body3.newObject("Sketcher::SketchObject", "Sketch004")
sketch5.AttachmentSupport = (doc.getObject("YZ_Plane002"), [""])
sketch5.MapMode = "FlatFace"
sketch5.AttachmentOffset = App.Placement(App.Vector(0, 0, 3 * 25.4), App.Rotation())
sketch5.addGeometry([
    Part.Circle(App.Vector(89, 73, 0), App.Vector(0, 0, 1), 13),
    Part.Circle(App.Vector(241, 73, 0), App.Vector(0, 0, 1), 13),
    Part.Circle(App.Vector(394, 73, 0), App.Vector(0, 0, 1), 13),
], False)
sketch5.addConstraint([
    Sketcher.Constraint("Equal", 0, 1),
    Sketcher.Constraint("Equal", 1, 2),
    Sketcher.Constraint("Horizontal", 0, 3, 1, 3),
    Sketcher.Constraint("Horizontal", 1, 3, 2, 3),
    Sketcher.Constraint("Diameter", 0, Q("1.0625 in")),
    Sketcher.Constraint("DistanceX", 0, 3, 1, 3, Q("6 in")),
    Sketcher.Constraint("DistanceX", 1, 3, 2, 3, Q("6 in")),
    Sketcher.Constraint("DistanceX", -1, 1, 0, 3, Q("3.5 in")),
    Sketcher.Constraint("DistanceY", -1, 1, 0, 3, Q("2.875 in")),
])
doc.recompute()
hole2 = body3.newObject("PartDesign::Hole", "Hole001")
hole2.Profile = sketch5
hole2.ThreadType = "None"
hole2.Diameter = Q("1.0625 in")
hole2.DepthType = "ThroughAll"

doc.recompute()
